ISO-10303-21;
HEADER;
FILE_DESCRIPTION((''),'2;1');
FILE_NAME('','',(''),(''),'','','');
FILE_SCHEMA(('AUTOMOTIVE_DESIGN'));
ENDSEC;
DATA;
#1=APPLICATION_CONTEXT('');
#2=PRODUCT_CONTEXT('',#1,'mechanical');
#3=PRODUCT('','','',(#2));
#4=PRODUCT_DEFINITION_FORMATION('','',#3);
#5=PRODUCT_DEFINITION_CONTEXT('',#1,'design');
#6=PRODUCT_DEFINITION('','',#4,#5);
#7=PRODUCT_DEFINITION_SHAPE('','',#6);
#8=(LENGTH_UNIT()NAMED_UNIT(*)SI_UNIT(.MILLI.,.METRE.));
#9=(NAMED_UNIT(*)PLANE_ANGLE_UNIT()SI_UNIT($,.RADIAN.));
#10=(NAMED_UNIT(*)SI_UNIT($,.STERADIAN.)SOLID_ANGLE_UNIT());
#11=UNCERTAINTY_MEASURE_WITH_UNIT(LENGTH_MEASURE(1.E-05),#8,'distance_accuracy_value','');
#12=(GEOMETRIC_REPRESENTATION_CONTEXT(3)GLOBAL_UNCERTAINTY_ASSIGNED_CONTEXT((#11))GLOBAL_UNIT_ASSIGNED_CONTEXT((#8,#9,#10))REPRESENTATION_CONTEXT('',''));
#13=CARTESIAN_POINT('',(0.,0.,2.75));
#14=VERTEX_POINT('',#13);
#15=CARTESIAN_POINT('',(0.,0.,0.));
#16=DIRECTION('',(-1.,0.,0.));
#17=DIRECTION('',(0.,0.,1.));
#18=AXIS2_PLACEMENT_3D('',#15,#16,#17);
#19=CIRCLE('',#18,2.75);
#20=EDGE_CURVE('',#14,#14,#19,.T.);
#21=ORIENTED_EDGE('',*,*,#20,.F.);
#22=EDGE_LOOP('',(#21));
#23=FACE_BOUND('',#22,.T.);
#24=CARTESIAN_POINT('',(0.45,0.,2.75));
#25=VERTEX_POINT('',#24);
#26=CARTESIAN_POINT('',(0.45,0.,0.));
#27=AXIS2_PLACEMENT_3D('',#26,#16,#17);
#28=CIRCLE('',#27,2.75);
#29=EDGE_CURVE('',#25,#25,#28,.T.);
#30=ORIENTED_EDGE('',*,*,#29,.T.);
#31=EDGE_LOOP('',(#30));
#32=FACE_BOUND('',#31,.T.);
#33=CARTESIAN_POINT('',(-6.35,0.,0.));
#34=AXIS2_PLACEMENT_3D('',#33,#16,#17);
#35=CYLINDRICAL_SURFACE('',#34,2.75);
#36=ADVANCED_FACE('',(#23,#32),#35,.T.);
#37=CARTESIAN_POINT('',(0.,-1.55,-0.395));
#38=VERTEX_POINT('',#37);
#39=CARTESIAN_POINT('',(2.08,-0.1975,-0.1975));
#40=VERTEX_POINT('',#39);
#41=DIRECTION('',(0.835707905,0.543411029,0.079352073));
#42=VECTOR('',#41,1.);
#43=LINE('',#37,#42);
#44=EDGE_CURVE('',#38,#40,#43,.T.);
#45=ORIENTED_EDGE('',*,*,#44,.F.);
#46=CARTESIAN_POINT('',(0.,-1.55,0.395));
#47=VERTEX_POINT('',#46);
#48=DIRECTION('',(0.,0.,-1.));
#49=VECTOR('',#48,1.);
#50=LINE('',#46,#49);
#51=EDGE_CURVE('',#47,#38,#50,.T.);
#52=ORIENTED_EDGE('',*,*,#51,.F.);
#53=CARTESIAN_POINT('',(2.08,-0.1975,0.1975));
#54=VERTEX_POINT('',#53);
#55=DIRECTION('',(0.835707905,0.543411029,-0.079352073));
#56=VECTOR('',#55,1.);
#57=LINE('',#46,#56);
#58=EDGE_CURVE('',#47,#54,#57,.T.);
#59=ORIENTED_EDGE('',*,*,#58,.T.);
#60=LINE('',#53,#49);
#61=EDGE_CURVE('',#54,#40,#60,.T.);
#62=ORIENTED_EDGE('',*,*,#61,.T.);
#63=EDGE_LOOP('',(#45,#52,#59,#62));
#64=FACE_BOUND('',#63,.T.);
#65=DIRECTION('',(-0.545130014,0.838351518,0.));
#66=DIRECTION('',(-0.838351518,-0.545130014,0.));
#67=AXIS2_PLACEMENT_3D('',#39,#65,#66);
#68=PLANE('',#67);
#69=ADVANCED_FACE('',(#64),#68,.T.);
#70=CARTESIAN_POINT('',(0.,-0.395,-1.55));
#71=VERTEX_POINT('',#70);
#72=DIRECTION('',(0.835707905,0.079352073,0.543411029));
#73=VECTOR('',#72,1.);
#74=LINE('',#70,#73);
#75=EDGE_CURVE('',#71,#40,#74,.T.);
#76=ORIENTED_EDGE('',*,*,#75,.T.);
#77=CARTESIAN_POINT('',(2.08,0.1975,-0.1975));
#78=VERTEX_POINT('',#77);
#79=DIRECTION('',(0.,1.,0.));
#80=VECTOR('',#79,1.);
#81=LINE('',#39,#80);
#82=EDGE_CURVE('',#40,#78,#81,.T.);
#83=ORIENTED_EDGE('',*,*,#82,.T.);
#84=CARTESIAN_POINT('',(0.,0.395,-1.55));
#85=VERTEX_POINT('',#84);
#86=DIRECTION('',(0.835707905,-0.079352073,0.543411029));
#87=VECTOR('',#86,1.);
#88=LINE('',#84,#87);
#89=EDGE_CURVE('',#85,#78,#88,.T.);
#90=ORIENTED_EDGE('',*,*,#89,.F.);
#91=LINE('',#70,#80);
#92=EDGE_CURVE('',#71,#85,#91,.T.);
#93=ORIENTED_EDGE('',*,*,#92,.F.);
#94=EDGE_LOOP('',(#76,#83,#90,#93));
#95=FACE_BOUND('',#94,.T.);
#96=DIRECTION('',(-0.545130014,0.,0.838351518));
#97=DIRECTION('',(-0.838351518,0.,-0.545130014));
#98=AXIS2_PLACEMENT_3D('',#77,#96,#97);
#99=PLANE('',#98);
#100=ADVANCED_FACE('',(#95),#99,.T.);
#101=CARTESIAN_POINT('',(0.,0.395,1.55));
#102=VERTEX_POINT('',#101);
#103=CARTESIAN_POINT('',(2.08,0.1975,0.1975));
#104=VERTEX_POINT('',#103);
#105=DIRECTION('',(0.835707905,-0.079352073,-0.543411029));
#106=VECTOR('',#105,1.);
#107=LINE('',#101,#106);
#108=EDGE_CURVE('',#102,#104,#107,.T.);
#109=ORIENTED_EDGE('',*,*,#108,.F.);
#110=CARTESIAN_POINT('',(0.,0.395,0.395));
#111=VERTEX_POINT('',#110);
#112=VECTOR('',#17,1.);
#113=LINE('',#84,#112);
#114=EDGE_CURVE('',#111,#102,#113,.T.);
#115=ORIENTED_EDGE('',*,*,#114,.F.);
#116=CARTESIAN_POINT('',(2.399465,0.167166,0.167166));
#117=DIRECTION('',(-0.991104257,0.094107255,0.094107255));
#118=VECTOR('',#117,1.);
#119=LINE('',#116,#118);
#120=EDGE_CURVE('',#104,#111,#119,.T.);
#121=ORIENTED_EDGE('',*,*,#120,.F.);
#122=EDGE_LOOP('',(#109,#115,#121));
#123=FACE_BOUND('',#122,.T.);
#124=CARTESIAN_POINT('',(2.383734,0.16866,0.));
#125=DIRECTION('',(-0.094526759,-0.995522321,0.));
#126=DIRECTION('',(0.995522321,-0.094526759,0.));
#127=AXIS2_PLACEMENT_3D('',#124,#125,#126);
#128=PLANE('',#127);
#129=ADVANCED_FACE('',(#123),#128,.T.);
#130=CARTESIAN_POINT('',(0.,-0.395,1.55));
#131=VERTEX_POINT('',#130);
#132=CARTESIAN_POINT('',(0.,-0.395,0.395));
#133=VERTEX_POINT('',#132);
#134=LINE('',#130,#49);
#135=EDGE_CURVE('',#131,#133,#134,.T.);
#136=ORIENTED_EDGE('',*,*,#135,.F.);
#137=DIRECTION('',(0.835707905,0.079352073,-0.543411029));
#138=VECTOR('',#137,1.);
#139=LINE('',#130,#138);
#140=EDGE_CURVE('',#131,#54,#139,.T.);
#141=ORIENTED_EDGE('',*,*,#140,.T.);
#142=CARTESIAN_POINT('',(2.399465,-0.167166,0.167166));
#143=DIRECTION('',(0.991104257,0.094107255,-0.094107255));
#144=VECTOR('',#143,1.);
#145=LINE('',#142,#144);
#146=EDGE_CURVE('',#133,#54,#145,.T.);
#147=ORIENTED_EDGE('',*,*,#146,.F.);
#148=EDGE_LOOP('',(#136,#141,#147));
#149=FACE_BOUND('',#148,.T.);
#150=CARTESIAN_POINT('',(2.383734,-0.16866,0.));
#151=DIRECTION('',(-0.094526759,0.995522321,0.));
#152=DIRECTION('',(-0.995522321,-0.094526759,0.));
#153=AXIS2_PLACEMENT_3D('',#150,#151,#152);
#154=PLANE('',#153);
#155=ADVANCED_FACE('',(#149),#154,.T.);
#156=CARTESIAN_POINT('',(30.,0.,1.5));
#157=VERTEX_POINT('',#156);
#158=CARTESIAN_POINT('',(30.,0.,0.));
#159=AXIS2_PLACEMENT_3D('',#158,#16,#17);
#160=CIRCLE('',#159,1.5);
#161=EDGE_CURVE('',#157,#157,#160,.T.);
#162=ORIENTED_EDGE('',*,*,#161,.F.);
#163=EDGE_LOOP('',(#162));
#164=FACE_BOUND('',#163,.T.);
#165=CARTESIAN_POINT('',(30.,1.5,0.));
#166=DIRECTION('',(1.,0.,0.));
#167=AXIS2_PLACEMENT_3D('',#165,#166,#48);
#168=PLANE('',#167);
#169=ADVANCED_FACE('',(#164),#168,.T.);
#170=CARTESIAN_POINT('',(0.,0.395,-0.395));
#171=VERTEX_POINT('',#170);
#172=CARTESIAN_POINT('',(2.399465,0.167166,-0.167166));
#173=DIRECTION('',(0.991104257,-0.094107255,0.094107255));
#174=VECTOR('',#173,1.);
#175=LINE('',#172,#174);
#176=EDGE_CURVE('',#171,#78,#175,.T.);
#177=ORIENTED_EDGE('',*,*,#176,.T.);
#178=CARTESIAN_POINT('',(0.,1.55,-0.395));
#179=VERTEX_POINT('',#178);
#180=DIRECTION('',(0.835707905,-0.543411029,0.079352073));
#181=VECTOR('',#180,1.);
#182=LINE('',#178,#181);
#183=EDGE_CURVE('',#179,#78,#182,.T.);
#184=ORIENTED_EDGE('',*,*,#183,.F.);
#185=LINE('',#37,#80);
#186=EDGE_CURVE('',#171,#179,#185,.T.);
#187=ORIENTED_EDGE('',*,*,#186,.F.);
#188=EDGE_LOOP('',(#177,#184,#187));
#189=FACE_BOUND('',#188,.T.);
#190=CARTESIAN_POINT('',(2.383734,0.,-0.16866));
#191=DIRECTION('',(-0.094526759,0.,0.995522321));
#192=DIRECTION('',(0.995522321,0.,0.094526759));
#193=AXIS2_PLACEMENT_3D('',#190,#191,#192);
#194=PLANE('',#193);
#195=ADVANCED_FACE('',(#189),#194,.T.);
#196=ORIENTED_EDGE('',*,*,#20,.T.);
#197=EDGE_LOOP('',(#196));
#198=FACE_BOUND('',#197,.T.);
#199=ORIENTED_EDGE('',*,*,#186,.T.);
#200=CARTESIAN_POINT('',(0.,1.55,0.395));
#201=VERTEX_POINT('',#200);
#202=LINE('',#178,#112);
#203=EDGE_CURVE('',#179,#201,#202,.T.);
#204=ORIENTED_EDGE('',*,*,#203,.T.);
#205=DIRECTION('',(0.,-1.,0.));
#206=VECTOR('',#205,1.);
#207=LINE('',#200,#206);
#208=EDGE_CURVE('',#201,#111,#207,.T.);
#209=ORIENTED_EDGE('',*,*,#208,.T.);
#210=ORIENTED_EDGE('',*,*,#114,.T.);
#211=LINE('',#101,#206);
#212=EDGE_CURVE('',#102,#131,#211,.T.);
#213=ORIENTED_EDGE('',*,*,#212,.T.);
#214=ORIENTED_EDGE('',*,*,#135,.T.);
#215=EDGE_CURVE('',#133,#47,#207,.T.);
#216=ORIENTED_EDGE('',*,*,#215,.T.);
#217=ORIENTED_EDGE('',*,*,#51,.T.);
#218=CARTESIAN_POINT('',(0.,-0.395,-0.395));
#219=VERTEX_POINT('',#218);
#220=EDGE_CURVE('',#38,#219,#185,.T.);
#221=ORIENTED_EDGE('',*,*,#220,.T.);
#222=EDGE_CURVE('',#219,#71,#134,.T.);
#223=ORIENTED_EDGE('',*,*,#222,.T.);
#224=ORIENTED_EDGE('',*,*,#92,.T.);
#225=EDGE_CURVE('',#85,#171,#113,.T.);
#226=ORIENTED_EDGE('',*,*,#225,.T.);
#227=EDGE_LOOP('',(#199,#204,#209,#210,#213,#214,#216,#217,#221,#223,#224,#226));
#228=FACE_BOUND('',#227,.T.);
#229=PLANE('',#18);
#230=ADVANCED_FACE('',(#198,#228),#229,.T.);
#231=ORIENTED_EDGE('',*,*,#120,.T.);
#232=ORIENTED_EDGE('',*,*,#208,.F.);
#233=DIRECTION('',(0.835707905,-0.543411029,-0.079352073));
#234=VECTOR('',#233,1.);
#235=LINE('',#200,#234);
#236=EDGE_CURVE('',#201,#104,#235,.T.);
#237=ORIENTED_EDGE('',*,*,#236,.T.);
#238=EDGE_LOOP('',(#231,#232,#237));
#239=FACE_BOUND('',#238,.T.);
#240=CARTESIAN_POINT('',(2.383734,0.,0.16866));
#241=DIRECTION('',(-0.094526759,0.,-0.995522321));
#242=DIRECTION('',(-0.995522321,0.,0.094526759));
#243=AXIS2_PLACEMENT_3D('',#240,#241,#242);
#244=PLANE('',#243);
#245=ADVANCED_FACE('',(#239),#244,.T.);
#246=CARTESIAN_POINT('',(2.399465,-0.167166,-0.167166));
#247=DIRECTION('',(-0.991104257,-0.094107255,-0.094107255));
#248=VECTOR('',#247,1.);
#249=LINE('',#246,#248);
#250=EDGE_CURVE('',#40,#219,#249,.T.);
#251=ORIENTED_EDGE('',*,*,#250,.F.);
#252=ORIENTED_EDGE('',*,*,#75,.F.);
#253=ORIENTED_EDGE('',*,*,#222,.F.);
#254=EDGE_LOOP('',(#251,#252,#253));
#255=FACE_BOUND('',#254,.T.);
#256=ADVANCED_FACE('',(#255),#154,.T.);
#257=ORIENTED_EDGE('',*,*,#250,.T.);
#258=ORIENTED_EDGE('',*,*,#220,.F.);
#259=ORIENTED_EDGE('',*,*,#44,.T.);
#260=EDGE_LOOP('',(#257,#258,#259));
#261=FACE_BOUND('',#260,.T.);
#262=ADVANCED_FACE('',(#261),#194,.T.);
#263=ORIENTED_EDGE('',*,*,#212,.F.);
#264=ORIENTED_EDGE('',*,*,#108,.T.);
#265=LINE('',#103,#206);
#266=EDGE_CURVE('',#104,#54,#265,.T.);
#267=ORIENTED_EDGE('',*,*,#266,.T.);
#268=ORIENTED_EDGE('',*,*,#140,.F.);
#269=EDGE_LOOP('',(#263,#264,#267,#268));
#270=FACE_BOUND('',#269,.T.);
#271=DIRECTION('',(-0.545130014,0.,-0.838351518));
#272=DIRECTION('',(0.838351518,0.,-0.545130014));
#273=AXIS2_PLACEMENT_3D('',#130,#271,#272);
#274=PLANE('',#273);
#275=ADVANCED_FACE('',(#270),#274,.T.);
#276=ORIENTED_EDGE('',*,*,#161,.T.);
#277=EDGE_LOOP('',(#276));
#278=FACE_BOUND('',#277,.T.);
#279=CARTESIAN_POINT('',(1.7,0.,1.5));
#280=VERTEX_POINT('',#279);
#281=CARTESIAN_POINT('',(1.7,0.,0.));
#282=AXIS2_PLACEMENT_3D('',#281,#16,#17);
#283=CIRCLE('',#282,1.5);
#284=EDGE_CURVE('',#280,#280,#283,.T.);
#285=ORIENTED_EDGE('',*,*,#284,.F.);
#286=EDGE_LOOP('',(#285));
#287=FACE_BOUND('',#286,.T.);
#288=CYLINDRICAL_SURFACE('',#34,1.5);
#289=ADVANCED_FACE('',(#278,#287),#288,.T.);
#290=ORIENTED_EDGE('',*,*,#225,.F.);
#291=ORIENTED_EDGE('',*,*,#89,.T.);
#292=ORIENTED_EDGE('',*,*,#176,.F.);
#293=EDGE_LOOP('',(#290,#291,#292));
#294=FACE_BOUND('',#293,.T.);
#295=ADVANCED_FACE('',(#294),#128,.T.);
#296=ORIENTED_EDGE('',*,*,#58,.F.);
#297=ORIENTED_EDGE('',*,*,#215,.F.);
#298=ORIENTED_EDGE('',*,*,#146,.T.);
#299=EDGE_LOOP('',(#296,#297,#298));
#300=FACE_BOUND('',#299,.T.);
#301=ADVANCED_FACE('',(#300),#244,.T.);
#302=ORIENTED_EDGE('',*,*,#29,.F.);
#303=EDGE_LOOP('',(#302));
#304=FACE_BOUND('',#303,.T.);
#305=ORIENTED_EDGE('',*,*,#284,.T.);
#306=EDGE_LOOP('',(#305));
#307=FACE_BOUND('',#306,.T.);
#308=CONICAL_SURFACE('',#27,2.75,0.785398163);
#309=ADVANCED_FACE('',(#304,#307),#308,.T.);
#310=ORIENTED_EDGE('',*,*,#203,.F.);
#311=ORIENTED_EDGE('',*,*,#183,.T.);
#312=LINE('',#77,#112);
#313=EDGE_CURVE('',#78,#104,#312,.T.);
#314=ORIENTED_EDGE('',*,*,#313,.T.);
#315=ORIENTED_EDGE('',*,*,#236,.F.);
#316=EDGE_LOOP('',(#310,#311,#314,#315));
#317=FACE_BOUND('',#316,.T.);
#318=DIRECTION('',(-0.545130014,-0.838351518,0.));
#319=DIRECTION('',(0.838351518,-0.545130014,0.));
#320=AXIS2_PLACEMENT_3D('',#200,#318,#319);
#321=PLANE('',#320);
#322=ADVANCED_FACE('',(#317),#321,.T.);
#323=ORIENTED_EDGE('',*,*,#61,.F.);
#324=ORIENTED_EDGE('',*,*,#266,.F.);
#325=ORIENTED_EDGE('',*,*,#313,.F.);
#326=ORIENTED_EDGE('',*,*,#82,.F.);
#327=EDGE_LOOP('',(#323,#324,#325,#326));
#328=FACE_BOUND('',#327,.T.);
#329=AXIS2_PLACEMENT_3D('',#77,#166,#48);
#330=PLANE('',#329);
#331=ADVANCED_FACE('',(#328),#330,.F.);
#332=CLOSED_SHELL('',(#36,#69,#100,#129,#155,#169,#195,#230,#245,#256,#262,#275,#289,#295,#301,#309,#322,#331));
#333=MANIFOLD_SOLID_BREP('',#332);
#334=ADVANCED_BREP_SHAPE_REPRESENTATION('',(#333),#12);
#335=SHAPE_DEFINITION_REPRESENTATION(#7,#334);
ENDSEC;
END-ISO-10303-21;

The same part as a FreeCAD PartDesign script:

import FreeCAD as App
import Part
import Sketcher

V = App.Vector
Q = App.Units.Quantity


def add_polygon(sketch, points):
    """Adds a closed chain of lines whose ends are joined by coincident constraints."""
    first, n = sketch.GeometryCount, len(points)
    for a, b in zip(points, points[1:] + points[:1]):
        sketch.addGeometry(Part.LineSegment(App.Vector(*a, 0), App.Vector(*b, 0)), False)
    for i in range(n):
        sketch.addConstraint(Sketcher.Constraint("Coincident", first + i, 2, first + (i + 1) % n, 1))

doc = App.newDocument("Part")
body = doc.addObject("PartDesign::Body", "Body")

# Sketch on XY plane
sketch1 = doc.addObject("Sketcher::SketchObject", "Sketch")
body.addObject(sketch1)
sketch1.AttachmentSupport = (doc.XY_Plane, [""])
sketch1.MapMode = "FlatFace"
add_polygon(sketch1, [(0, 2.75), (0, 0), (30, 0), (30, 1.5), (1.7, 1.5), (0.45, 2.75)])  # lines 0-5
sketch1.addConstraint([
    Sketcher.Constraint("Vertical", 0),
    Sketcher.Constraint("Horizontal", 1),
    Sketcher.Constraint("Vertical", 2),
    Sketcher.Constraint("Horizontal", 3),
    Sketcher.Constraint("Horizontal", 5),
    Sketcher.Constraint("Coincident", 0, 2, -1, 1),
    Sketcher.Constraint("DistanceX", 1, 1, 1, 2, Q("30 mm")),
    Sketcher.Constraint("Angle", 4, Q("135 deg")),
    Sketcher.Constraint("DistanceX", 3, 2, 3, 1, Q("28.3 mm")),
    Sketcher.Constraint("DistanceY", 2, 1, 2, 2, Q("1.5 mm")),
    Sketcher.Constraint("DistanceX", 5, 2, 5, 1, Q("0.45 mm")),
])
revolution = doc.addObject("PartDesign::Revolution", "Revolution")
body.addObject(revolution)
revolution.Profile = sketch1
revolution.ReferenceAxis = (sketch1, ["H_Axis"])
revolution.Angle = 360

# Sketch on YZ plane
sketch2 = doc.addObject("Sketcher::SketchObject", "Sketch001")
body.addObject(sketch2)
sketch2.AttachmentSupport = (doc.YZ_Plane, [""])
sketch2.MapMode = "FlatFace"
add_polygon(sketch2, [(1.6, -0.4), (-1.6, -0.4), (-1.6, 0.4), (1.6, 0.4)])  # lines 0-3
sketch2.addConstraint([
    Sketcher.Constraint("Horizontal", 0),
    Sketcher.Constraint("Vertical", 1),
    Sketcher.Constraint("Horizontal", 2),
    Sketcher.Constraint("Vertical", 3),
    Sketcher.Constraint("Symmetric", 0, 2, 2, 2, -1, 1),
    Sketcher.Constraint("DistanceX", 0, 2, 0, 1, Q("3.1 mm")),
    Sketcher.Constraint("DistanceY", 1, 1, 1, 2, Q("0.79 mm")),
])

# Sketch on YZ plane
sketch3 = doc.addObject("Sketcher::SketchObject", "Sketch002")
body.addObject(sketch3)
sketch3.AttachmentSupport = (doc.YZ_Plane, [""])
sketch3.MapMode = "FlatFace"
sketch3.AttachmentOffset = App.Placement(V(0, 0, 2.08), App.Rotation())
add_polygon(sketch3, [(0.2, -0.2), (-0.2, -0.2), (-0.2, 0.2), (0.2, 0.2)])  # lines 0-3
sketch3.addConstraint([
    Sketcher.Constraint("Horizontal", 0),
    Sketcher.Constraint("Vertical", 1),
    Sketcher.Constraint("Horizontal", 2),
    Sketcher.Constraint("Vertical", 3),
    Sketcher.Constraint("Symmetric", 0, 2, 2, 2, -1, 1),
    Sketcher.Constraint("Equal", 2, 1),
    Sketcher.Constraint("DistanceX", 0, 2, 0, 1, Q("0.395 mm")),
])

subtractiveloft = doc.addObject("PartDesign::SubtractiveLoft", "SubtractiveLoft")
body.addObject(subtractiveloft)
subtractiveloft.Profile = sketch2
subtractiveloft.Sections = [sketch3]
doc.recompute()

polarpattern = doc.addObject("PartDesign::PolarPattern", "PolarPattern")
body.addObject(polarpattern)
polarpattern.Originals = [subtractiveloft]
polarpattern.Axis = (doc.X_Axis, [""])
polarpattern.Angle = 90
polarpattern.Occurrences = 2
body.Tip = polarpattern

doc.recompute()
